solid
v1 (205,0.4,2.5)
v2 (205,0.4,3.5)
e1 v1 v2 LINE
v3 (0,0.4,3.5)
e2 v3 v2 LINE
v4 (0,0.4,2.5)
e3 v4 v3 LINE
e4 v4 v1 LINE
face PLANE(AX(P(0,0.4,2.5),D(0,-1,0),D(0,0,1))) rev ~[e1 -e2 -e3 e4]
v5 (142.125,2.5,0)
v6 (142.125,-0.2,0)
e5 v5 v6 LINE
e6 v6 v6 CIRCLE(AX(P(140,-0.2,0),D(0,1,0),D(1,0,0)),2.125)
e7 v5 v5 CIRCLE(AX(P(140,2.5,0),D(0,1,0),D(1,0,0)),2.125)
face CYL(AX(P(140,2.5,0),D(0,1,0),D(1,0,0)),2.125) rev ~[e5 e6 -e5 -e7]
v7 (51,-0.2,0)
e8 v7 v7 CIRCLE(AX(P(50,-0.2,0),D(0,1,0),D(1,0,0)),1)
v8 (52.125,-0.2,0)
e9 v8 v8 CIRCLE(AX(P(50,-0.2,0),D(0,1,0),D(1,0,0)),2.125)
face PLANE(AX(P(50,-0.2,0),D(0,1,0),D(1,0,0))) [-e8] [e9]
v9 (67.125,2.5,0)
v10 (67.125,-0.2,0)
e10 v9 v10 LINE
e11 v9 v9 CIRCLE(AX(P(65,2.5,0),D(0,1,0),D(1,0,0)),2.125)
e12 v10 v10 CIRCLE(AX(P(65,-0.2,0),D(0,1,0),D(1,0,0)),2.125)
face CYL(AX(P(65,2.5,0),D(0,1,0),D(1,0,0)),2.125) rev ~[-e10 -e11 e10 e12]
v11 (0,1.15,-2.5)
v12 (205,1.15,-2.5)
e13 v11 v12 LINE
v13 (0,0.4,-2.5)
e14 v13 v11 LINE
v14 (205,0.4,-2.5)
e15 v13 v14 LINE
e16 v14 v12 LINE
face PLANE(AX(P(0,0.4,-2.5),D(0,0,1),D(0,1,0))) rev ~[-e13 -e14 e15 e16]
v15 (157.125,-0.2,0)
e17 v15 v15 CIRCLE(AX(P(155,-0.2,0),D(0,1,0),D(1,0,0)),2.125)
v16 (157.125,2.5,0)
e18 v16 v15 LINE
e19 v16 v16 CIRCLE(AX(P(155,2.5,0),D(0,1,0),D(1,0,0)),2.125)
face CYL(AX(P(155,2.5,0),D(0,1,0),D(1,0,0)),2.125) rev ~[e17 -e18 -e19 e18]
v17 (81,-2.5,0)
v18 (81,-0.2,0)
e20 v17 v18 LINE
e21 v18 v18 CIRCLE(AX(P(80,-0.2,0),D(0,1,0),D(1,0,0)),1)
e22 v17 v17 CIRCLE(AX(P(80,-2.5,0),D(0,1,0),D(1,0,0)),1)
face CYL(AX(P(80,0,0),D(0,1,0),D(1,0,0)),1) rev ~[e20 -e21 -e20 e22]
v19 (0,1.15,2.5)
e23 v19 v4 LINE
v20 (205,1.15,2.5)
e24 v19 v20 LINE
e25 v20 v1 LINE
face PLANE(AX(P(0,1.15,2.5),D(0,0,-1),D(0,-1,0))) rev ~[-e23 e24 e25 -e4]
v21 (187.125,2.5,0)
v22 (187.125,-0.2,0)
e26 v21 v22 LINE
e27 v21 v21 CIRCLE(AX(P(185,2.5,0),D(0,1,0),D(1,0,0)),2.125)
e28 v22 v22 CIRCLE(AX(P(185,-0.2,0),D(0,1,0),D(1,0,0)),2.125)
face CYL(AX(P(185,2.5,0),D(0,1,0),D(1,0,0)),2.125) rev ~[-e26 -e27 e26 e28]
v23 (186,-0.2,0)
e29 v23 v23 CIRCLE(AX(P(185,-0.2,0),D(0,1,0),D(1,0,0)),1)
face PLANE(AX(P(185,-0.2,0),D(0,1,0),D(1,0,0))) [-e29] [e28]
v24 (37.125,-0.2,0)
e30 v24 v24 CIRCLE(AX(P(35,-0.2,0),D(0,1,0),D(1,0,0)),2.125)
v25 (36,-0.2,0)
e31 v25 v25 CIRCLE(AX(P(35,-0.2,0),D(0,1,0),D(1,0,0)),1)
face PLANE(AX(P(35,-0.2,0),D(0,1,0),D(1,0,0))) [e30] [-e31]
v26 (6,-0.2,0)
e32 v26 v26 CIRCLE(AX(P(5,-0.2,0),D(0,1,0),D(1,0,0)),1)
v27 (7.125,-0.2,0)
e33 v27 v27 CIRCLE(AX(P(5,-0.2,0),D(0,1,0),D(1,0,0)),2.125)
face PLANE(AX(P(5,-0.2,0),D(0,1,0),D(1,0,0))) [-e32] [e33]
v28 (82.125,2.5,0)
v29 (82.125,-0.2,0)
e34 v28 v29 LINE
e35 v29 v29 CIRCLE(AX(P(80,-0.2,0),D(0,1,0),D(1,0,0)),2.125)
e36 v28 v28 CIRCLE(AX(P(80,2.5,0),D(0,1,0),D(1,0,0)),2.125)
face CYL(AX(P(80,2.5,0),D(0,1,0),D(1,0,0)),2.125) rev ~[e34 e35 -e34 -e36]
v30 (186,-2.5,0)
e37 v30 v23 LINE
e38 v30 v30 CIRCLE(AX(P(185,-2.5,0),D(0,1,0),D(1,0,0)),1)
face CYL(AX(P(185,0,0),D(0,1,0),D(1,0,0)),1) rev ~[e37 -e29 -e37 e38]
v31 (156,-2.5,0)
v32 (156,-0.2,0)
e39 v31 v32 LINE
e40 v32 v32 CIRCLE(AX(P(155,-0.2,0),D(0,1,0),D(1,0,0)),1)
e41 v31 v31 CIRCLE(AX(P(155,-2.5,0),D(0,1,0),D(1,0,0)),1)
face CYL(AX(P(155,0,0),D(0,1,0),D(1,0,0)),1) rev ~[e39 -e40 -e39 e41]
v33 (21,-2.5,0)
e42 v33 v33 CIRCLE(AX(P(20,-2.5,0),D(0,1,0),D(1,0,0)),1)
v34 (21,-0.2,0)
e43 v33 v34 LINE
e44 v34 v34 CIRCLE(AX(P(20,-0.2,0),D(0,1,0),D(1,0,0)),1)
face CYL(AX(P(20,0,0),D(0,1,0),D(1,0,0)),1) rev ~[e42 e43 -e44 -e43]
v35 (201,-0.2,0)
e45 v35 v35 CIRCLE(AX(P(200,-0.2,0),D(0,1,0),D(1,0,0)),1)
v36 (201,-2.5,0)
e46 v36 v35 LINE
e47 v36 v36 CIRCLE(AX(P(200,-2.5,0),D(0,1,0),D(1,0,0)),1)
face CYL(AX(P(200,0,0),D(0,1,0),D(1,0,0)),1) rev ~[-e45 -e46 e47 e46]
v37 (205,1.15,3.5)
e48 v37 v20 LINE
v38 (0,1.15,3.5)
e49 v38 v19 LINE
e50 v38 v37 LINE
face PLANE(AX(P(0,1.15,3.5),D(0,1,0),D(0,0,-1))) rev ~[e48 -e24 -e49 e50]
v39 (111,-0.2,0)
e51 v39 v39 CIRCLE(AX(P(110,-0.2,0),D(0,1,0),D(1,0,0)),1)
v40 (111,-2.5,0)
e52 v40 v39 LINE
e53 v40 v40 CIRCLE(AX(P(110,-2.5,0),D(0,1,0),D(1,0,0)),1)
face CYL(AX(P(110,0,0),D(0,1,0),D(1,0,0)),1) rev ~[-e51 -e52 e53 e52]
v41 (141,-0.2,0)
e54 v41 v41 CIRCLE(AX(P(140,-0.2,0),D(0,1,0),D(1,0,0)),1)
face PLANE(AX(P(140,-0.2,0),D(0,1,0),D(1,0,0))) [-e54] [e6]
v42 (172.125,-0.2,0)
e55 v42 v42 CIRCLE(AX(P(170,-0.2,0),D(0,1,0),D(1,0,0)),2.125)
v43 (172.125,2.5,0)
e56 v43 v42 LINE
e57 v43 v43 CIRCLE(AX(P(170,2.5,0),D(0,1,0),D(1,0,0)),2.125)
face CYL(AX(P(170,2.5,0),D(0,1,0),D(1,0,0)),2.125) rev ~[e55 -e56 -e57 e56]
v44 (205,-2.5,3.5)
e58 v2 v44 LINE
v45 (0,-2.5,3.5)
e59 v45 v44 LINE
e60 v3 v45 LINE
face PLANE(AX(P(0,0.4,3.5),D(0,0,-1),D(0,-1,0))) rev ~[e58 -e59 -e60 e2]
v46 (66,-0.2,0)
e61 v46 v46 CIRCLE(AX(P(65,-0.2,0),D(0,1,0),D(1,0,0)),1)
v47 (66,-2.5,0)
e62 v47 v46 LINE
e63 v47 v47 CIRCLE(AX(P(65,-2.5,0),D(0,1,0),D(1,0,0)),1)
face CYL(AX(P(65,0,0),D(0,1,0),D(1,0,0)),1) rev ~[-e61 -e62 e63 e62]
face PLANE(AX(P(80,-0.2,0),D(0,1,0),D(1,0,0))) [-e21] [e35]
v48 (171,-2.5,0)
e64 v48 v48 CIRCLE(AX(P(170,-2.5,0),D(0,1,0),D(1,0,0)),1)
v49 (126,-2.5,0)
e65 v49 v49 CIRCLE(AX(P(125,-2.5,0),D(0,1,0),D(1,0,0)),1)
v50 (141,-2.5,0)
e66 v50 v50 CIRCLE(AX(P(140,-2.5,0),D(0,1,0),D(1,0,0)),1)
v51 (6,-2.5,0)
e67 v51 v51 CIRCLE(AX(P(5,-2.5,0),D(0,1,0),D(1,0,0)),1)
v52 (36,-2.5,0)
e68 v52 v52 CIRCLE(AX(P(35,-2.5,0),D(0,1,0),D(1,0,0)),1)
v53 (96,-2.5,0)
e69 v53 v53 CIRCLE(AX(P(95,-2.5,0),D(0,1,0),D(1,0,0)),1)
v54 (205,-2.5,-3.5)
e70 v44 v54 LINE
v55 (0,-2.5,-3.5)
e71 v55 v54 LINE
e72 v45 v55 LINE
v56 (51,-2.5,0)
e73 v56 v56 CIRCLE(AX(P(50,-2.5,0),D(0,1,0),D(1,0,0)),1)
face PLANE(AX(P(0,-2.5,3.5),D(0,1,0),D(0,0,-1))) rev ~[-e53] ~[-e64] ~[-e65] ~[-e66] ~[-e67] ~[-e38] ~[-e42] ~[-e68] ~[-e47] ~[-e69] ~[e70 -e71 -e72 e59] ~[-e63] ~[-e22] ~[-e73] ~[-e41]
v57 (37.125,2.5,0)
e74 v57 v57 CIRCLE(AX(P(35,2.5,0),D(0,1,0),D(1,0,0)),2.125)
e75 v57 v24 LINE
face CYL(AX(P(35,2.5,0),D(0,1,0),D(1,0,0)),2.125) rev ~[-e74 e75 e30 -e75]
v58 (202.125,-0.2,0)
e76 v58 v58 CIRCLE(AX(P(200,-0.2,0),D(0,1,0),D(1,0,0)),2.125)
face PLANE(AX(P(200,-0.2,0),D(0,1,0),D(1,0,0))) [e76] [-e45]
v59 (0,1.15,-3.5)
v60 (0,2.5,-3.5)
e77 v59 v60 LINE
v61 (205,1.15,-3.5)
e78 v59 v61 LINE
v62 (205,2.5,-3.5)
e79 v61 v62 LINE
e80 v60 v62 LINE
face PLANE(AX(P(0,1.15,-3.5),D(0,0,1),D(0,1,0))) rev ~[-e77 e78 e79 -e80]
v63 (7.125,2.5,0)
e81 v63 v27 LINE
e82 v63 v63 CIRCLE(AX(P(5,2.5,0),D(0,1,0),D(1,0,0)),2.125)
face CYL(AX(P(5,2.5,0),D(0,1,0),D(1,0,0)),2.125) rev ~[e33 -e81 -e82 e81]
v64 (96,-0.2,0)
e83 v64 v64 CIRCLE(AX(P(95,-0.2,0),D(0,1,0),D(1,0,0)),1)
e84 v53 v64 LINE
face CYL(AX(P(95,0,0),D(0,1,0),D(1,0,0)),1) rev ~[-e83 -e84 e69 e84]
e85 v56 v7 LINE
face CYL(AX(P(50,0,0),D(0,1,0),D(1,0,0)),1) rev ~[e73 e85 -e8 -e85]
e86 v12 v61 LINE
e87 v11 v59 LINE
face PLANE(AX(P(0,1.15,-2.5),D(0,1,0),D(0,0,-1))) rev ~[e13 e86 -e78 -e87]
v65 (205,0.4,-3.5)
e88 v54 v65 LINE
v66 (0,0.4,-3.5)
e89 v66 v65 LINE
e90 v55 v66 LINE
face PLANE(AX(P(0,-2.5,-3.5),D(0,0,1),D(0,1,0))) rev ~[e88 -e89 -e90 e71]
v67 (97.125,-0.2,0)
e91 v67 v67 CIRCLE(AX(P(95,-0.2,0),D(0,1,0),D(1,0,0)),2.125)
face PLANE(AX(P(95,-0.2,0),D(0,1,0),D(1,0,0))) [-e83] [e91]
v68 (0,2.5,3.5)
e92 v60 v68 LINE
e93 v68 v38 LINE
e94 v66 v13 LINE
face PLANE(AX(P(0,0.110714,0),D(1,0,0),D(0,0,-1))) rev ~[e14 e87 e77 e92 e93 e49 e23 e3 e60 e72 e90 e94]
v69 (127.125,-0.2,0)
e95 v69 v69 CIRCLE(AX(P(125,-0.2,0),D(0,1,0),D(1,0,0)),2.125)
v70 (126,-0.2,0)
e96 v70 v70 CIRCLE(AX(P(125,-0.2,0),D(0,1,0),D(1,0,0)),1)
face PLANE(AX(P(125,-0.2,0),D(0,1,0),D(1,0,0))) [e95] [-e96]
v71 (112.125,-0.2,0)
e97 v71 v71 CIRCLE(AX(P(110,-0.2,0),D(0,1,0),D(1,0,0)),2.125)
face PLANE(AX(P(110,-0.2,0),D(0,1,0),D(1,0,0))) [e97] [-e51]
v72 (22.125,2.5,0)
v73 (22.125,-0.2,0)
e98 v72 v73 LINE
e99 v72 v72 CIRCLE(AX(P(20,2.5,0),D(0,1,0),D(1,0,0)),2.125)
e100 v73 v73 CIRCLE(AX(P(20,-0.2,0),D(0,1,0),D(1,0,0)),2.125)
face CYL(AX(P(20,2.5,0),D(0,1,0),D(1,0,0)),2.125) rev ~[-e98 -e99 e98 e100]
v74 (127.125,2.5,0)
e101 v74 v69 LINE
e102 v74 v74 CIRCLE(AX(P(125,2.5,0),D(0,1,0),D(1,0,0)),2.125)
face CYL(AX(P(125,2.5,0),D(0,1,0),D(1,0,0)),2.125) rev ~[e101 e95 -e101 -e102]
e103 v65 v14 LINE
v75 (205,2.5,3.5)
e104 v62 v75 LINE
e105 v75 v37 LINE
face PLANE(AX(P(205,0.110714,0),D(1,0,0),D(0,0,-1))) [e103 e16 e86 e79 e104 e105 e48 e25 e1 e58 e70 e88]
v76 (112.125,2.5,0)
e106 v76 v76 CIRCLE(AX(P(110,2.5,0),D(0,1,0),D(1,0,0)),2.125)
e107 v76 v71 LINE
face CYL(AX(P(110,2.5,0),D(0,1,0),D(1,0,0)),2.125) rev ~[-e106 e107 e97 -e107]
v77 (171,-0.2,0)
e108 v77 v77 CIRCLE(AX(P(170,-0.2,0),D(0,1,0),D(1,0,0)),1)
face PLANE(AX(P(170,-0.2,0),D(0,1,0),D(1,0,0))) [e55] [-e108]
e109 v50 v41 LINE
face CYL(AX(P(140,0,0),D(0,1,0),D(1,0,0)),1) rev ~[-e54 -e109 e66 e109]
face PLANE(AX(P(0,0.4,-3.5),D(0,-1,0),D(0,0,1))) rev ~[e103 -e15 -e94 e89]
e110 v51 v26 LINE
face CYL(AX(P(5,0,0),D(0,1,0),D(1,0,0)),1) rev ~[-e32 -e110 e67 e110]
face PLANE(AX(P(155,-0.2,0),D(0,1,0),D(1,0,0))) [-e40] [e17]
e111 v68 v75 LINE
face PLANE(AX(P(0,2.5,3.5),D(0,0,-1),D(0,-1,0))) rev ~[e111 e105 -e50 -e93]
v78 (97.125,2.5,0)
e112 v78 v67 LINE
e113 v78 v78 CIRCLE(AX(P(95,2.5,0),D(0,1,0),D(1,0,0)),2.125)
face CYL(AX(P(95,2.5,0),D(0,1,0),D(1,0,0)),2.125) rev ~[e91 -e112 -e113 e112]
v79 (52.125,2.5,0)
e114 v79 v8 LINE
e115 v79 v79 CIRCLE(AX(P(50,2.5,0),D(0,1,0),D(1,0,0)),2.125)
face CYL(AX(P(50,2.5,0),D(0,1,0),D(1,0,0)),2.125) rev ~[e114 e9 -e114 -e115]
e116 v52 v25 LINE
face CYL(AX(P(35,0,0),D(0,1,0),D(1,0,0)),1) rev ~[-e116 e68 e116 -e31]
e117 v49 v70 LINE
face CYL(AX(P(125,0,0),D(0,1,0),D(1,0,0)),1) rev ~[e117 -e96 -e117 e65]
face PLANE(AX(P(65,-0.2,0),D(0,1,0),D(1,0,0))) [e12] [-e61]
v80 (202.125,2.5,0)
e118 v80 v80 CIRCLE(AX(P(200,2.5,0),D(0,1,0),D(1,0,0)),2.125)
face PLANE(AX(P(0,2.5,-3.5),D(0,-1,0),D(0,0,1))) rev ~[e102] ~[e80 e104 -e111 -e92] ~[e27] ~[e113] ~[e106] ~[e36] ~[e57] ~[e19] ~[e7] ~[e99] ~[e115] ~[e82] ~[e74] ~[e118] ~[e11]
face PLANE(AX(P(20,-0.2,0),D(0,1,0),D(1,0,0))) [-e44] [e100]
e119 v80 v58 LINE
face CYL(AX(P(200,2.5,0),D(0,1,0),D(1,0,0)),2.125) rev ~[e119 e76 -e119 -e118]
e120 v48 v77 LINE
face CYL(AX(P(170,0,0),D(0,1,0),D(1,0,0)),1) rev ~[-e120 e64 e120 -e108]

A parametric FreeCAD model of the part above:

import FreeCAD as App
import Part
import Sketcher

V = App.Vector
Q = App.Units.Quantity

doc = App.newDocument("Part")
body = doc.addObject("PartDesign::Body", "Body")

# Sketch on YZ plane
sketch1 = body.newObject("Sketcher::SketchObject", "Sketch")
sketch1.AttachmentSupport = (doc.getObject("YZ_Plane"), [""])
sketch1.MapMode = "FlatFace"
sketch1.addGeometry([
    Part.LineSegment(V(1.1, -2.5, 0), V(1.1, -3.5, 0)),  # 0
    Part.LineSegment(V(1.1, -3.5, 0), V(2.5, -3.5, 0)),  # 1
    Part.LineSegment(V(2.5, -3.5, 0), V(2.5, 3.5, 0)),  # 2
    Part.LineSegment(V(2.5, 3.5, 0), V(1.1, 3.5, 0)),  # 3
    Part.LineSegment(V(1.1, 3.5, 0), V(1.1, 2.5, 0)),  # 4
    Part.LineSegment(V(1.1, 2.5, 0), V(0.4, 2.5, 0)),  # 5
    Part.LineSegment(V(0.4, 2.5, 0), V(0.4, 3.5, 0)),  # 6
    Part.LineSegment(V(0.4, 3.5, 0), V(-2.5, 3.5, 0)),  # 7
    Part.LineSegment(V(-2.5, 3.5, 0), V(-2.5, -3.5, 0)),  # 8
    Part.LineSegment(V(-2.5, -3.5, 0), V(0.4, -3.5, 0)),  # 9
    Part.LineSegment(V(0.4, -3.5, 0), V(0.4, -2.5, 0)),  # 10
    Part.LineSegment(V(0.4, -2.5, 0), V(1.1, -2.5, 0)),  # 11
], False)
sketch1.addConstraint([
    Sketcher.Constraint("Coincident", 0, 2, 1, 1),
    Sketcher.Constraint("Coincident", 1, 2, 2, 1),
    Sketcher.Constraint("Coincident", 2, 2, 3, 1),
    Sketcher.Constraint("Coincident", 3, 2, 4, 1),
    Sketcher.Constraint("Coincident", 4, 2, 5, 1),
    Sketcher.Constraint("Coincident", 5, 2, 6, 1),
    Sketcher.Constraint("Coincident", 6, 2, 7, 1),
    Sketcher.Constraint("Coincident", 7, 2, 8, 1),
    Sketcher.Constraint("Coincident", 8, 2, 9, 1),
    Sketcher.Constraint("Coincident", 9, 2, 10, 1),
    Sketcher.Constraint("Coincident", 10, 2, 11, 1),
    Sketcher.Constraint("Coincident", 11, 2, 0, 1),
    Sketcher.Constraint("Vertical", 0),
    Sketcher.Constraint("Horizontal", 1),
    Sketcher.Constraint("Vertical", 2),
    Sketcher.Constraint("Horizontal", 3),
    Sketcher.Constraint("Vertical", 4),
    Sketcher.Constraint("Horizontal", 5),
    Sketcher.Constraint("Vertical", 6),
    Sketcher.Constraint("Horizontal", 7),
    Sketcher.Constraint("Vertical", 8),
    Sketcher.Constraint("Horizontal", 9),
    Sketcher.Constraint("Vertical", 10),
    Sketcher.Constraint("Horizontal", 11),
    Sketcher.Constraint("Symmetric", 1, 2, 7, 2, -1, 1),
    Sketcher.Constraint("Symmetric", 0, 2, 3, 2, -1),
    Sketcher.Constraint("Symmetric", 6, 2, 9, 2, -1),
    Sketcher.Constraint("Equal", 0, 4),
    Sketcher.Constraint("DistanceY", 0, 2, 0, 1, Q("1 mm")),
    Sketcher.Constraint("DistanceY", 2, 1, 2, 2, Q("7 mm")),
    Sketcher.Constraint("DistanceX", 7, 2, 7, 1, Q("2.9 mm")),
    Sketcher.Constraint("DistanceX", 7, 2, 2, 2, Q("5 mm")),
    Sketcher.Constraint("DistanceX", 1, 1, 1, 2, Q("1.35 mm")),
])
pad1 = body.newObject("PartDesign::Pad", "Pad")
pad1.Profile = sketch1
pad1.Length = 205

# Sketch on XZ plane
sketch2 = body.newObject("Sketcher::SketchObject", "Sketch001")
sketch2.AttachmentSupport = (doc.getObject("XZ_Plane"), [""])
sketch2.MapMode = "FlatFace"
sketch2.addGeometry(Part.Circle(V(5, 0, 0), V(0, 0, 1), 1), False)
sketch2.addConstraint([
    Sketcher.Constraint("PointOnObject", 0, 3, -1),
    Sketcher.Constraint("Diameter", 0, Q("2 mm")),
    Sketcher.Constraint("DistanceX", -1, 1, 0, 3, Q("5 mm")),
])
pocket1 = body.newObject("PartDesign::Pocket", "Pocket")
pocket1.Profile = sketch2
pocket1.Length = 50
pocket1.Midplane = True

# Sketch on XZ plane
sketch3 = body.newObject("Sketcher::SketchObject", "Sketch002")
sketch3.AttachmentSupport = (doc.getObject("XZ_Plane"), [""])
sketch3.MapMode = "FlatFace"
sketch3.AttachmentOffset = App.Placement(V(0, 0, -2.5), App.Rotation())
sketch3.addGeometry([
    Part.Circle(V(5, 0, 0), V(0, 0, 1), 2.1),
    Part.Circle(V(5, 0, 0), V(0, 0, 1), 1),
], False)
sketch3.addConstraint([
    Sketcher.Constraint("Coincident", 1, 3, 0, 3),
    Sketcher.Constraint("PointOnObject", 0, 3, -1),
    Sketcher.Constraint("Diameter", 1, Q("2 mm")),
    Sketcher.Constraint("Diameter", 0, Q("4.25 mm")),
    Sketcher.Constraint("DistanceX", -1, 1, 0, 3, Q("5 mm")),
])
pocket2 = body.newObject("PartDesign::Pocket", "Pocket001")
pocket2.Profile = sketch3
pocket2.Length = 2.7
pocket2.Reversed = True
doc.recompute()

linearpattern = body.newObject("PartDesign::LinearPattern", "LinearPattern")
linearpattern.Originals = [pocket1, pocket2]
linearpattern.Direction = (doc.getObject("X_Axis"), [""])
linearpattern.Mode = "offset"
linearpattern.Offset = 15
linearpattern.Occurrences = 14
body.Tip = linearpattern

doc.recompute()
